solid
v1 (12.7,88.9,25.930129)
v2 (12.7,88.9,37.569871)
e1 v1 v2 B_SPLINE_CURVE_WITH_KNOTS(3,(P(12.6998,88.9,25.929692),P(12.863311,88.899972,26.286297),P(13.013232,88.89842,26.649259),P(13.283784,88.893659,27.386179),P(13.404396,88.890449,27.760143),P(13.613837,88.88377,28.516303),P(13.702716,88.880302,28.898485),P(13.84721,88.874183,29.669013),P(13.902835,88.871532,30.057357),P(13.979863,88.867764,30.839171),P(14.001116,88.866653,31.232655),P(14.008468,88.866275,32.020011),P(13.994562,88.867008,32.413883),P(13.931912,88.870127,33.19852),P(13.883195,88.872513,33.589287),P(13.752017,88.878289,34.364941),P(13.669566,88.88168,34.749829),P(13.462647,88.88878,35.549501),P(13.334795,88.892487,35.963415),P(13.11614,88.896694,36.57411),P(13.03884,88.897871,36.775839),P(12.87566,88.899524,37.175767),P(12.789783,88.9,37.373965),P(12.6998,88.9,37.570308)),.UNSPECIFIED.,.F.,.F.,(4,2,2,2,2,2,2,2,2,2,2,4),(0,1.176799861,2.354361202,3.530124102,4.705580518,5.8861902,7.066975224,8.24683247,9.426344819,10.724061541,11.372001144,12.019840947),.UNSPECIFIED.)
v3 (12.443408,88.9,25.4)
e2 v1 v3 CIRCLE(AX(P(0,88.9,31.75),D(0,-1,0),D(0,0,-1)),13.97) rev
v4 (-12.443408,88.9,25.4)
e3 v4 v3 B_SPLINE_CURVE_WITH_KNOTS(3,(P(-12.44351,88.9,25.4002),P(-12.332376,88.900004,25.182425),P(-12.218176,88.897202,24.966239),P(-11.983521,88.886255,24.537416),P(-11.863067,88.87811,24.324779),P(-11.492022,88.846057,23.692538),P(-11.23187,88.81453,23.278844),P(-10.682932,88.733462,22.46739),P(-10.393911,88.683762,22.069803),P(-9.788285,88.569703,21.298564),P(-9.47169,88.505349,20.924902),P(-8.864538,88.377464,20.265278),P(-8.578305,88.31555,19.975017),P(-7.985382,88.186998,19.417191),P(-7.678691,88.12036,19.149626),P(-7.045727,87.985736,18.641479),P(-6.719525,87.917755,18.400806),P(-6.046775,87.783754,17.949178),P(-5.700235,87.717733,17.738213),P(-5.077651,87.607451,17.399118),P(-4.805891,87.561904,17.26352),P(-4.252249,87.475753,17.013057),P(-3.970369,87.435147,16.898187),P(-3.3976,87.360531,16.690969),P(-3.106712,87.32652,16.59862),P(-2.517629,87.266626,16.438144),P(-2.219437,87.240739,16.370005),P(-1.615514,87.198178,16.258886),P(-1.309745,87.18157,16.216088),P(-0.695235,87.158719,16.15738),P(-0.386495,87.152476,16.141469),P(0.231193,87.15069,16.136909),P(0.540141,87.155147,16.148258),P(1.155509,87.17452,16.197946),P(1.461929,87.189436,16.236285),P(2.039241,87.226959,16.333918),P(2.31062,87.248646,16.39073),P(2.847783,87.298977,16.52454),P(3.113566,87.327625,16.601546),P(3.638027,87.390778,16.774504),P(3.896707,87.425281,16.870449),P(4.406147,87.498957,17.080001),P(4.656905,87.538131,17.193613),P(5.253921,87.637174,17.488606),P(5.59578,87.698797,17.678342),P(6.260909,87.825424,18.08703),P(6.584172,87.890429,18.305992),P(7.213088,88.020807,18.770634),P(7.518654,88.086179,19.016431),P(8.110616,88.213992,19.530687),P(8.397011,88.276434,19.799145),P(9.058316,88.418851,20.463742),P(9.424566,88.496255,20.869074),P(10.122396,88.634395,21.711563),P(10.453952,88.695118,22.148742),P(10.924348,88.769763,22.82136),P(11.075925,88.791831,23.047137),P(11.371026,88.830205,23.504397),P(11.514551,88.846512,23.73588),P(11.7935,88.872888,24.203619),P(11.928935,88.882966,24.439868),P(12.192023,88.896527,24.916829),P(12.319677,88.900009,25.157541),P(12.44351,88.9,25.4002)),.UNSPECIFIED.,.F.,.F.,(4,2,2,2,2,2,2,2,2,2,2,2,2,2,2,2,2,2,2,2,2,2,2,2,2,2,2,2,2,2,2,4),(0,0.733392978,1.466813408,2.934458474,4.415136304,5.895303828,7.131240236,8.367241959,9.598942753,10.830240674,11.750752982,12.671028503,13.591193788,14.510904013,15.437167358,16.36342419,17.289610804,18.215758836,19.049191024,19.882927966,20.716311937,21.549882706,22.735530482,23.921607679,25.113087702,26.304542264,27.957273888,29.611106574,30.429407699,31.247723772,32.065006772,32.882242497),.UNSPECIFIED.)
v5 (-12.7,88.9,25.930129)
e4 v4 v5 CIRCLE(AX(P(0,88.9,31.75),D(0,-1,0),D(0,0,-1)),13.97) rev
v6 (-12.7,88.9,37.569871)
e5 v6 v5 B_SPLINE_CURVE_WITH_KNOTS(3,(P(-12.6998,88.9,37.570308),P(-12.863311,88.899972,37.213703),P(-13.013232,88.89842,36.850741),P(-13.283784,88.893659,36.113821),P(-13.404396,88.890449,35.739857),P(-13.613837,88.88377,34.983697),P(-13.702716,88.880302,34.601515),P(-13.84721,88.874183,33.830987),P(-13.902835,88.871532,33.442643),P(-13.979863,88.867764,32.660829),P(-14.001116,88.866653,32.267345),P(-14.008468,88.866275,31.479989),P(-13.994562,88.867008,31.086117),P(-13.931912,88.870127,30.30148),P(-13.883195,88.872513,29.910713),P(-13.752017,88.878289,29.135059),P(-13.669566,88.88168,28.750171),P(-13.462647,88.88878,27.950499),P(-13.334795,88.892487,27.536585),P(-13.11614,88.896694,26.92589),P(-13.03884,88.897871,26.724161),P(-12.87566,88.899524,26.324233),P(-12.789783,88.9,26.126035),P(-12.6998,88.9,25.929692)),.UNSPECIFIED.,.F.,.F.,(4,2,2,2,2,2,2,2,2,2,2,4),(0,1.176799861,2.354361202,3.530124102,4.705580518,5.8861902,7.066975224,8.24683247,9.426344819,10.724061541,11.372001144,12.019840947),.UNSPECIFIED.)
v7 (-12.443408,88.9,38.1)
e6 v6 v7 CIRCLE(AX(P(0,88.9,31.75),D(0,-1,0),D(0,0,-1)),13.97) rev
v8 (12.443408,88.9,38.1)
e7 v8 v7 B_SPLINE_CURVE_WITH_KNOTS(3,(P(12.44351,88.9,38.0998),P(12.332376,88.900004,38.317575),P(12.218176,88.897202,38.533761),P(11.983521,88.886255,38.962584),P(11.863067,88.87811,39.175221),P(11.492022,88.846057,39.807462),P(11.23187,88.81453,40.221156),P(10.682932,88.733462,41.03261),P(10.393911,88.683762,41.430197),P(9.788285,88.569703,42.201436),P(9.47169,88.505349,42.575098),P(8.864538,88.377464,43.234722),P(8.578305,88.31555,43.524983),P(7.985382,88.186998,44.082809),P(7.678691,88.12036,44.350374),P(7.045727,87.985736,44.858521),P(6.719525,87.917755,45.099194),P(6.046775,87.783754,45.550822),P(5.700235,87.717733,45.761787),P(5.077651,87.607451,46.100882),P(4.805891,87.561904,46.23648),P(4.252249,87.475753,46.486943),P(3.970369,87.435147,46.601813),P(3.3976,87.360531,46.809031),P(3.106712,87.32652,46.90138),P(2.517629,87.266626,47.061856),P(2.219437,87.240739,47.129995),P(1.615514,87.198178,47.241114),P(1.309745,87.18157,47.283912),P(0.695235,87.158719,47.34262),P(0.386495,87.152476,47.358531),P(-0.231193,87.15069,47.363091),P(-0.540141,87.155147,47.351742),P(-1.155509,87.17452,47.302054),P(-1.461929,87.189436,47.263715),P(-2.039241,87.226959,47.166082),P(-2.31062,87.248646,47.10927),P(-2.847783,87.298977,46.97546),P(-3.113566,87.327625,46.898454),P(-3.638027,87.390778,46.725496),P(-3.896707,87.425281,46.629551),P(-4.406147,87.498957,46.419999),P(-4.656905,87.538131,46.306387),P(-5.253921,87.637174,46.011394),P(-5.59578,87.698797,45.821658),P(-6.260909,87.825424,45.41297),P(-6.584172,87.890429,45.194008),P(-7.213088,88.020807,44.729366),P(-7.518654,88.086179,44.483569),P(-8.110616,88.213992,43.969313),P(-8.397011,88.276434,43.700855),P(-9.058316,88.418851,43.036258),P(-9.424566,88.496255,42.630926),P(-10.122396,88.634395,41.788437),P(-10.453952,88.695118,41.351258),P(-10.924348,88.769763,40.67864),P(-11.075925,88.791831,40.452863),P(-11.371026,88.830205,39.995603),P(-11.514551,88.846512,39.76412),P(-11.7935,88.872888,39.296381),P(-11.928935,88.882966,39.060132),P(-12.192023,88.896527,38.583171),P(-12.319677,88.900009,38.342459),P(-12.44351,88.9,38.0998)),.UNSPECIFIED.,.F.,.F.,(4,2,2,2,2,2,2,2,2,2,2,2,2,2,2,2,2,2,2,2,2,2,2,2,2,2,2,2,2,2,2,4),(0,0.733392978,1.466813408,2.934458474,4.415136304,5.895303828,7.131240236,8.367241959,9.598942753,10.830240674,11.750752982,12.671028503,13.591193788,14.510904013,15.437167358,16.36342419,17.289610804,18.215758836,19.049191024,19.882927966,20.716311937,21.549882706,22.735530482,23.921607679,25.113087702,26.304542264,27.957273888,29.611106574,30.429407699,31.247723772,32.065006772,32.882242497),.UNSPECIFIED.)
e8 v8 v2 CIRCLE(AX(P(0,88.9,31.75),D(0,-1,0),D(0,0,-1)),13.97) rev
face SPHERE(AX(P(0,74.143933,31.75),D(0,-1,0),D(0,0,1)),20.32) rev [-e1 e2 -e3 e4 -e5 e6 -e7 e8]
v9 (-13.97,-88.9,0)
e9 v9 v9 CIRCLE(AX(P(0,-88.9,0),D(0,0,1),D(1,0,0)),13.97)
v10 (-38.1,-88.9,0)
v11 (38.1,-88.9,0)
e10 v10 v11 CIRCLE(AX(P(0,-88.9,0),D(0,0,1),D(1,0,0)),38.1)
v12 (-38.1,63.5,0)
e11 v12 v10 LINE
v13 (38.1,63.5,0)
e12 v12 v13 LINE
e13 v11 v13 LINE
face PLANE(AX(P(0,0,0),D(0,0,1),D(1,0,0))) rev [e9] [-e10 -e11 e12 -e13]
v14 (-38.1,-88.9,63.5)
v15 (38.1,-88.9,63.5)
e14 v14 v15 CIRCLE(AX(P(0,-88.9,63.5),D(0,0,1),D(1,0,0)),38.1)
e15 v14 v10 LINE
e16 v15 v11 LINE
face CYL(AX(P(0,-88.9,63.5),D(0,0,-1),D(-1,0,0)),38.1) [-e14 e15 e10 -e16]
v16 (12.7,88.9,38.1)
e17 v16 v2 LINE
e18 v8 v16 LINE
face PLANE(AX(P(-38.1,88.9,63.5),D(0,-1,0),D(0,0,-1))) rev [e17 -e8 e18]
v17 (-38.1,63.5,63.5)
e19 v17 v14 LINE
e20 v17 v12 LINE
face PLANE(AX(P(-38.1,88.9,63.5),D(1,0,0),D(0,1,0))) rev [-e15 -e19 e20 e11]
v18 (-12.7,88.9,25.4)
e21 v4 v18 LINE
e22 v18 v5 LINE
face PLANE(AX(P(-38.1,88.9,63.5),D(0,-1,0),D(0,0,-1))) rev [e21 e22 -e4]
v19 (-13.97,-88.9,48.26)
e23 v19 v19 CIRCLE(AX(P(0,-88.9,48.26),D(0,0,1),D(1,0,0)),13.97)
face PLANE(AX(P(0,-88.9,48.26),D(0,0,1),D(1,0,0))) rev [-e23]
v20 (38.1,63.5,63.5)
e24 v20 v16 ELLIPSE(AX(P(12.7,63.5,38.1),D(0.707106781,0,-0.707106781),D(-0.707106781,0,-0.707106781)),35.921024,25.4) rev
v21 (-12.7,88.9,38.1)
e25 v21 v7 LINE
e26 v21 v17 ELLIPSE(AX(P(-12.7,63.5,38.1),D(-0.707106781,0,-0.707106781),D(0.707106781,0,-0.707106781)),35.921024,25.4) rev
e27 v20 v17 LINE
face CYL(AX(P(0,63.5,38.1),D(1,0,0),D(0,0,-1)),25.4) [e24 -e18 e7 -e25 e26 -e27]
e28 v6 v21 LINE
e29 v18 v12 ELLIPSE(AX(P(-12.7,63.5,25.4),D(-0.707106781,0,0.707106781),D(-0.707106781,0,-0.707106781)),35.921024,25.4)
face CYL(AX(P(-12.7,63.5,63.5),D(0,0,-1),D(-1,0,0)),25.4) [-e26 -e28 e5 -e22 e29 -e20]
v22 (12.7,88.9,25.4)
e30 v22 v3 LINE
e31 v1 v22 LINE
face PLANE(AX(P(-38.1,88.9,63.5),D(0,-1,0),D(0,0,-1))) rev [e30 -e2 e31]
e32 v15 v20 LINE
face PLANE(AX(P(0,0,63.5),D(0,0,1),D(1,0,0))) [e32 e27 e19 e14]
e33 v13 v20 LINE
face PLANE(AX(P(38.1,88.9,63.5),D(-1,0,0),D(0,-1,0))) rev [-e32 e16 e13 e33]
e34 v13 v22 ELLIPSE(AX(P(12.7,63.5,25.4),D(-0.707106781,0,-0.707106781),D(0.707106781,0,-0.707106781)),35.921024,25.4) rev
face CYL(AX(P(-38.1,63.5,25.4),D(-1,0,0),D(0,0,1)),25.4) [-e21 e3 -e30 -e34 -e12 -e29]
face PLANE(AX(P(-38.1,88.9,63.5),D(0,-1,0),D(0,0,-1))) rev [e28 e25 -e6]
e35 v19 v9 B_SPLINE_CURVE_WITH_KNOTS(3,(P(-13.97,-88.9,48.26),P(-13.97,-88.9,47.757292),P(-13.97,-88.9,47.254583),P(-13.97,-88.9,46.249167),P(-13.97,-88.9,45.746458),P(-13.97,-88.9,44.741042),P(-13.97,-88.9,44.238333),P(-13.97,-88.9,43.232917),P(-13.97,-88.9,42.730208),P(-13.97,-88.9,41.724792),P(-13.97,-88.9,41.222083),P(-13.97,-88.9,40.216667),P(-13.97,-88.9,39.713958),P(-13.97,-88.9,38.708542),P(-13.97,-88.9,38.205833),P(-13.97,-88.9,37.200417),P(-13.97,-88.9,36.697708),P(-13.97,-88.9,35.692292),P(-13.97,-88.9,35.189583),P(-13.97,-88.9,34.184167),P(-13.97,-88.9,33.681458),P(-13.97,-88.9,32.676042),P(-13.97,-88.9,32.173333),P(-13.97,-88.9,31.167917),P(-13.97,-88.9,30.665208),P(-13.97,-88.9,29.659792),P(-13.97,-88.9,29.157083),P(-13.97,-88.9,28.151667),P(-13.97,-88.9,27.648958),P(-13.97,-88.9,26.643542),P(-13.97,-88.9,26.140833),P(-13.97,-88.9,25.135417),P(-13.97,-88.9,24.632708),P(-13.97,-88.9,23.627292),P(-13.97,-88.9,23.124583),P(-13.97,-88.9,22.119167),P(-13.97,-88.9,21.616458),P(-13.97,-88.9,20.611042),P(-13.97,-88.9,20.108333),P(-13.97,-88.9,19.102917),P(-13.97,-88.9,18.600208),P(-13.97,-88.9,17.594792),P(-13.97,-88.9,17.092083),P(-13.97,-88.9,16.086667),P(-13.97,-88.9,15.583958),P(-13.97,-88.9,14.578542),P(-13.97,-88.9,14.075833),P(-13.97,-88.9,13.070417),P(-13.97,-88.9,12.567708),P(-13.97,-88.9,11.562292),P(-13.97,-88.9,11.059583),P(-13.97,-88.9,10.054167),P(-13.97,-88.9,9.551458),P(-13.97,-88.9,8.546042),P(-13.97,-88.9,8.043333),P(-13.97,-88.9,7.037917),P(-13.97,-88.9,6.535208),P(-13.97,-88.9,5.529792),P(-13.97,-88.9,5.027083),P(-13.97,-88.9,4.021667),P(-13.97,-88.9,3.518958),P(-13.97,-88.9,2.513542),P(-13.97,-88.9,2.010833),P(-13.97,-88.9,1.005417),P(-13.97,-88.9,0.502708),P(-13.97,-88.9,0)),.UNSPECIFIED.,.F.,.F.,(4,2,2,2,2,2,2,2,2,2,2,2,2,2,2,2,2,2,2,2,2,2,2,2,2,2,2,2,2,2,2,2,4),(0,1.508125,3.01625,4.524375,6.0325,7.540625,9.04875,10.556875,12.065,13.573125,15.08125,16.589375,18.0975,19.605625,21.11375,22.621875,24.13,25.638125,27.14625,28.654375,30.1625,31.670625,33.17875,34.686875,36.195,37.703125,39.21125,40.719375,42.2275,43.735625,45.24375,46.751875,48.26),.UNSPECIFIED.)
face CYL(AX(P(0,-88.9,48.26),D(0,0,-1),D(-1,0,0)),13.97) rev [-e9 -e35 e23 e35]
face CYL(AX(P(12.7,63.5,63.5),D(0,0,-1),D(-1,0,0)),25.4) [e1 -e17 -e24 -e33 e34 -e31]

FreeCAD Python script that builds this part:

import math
import FreeCAD as App
import Part
import Sketcher
from FreeCAD import Vector
Q = App.Units.Quantity


def edges_at(feature, points):
    """Names of the edges that pass closest to the given points."""
    edges = feature.Shape.Edges
    near = lambda p: min(range(len(edges)), key=lambda i: edges[i].distToShape(Part.Vertex(*p))[0])
    return sorted({f"Edge{near(p) + 1}" for p in points})


def add_polygon(sketch, points):
    """Adds a closed chain of lines whose ends are joined by coincident constraints."""
    first, n = sketch.GeometryCount, len(points)
    for a, b in zip(points, points[1:] + points[:1]):
        sketch.addGeometry(Part.LineSegment(App.Vector(*a, 0), App.Vector(*b, 0)), False)
    for i in range(n):
        sketch.addConstraint(Sketcher.Constraint("Coincident", first + i, 2, first + (i + 1) % n, 1))

doc = App.newDocument("Part")
params = doc.addObject("Spreadsheet::Sheet", "Params")
for row, (alias, value) in enumerate([
    ("sketch1_width", "3 in"),
    ("sketch1_height", "7 in"),
    ("pad1_length", "2.5 in"),
    ("sketch2_diameter", "3 in"),
    ("sketch3_diameter", "1.1 in"),
    ("pocket1_length", "1.9 in"),
    ("fillet_radius", "1 in"),
    ("sketch4_radius", "0.8 in"),
    ("groove_angle", "360 deg"),
], start=1):
    params.set(f"A{row}", alias)
    params.set(f"B{row}", "=" + value)
    params.setAlias(f"B{row}", alias)

body = doc.addObject("PartDesign::Body", "Body")

sketch1 = body.newObject("Sketcher::SketchObject", "Sketch")
sketch1.AttachmentSupport = (doc.getObject("XY_Plane"), [""])
sketch1.MapMode = "FlatFace"
add_polygon(sketch1, [(-38, 89), (-38, -89), (38, -89), (38, 89)])
sketch1.addConstraint([
    Sketcher.Constraint("Vertical", 0),
    Sketcher.Constraint("Horizontal", 1),
    Sketcher.Constraint("Vertical", 2),
    Sketcher.Constraint("Horizontal", 3),
    Sketcher.Constraint("Symmetric", 0, 2, 2, 2, -1, 1),
    Sketcher.Constraint("DistanceX", 1, 1, 1, 2, Q("3 in")),
    Sketcher.Constraint("DistanceY", 0, 2, 0, 1, Q("7 in")),
])
sketch1.setExpression("Constraints[9]", "Params.sketch1_width")
sketch1.setExpression("Constraints[10]", "Params.sketch1_height")
pad1 = body.newObject("PartDesign::Pad", "Pad")
pad1.Profile = sketch1
pad1.setExpression("Length", "Params.pad1_length")

sketch2 = body.newObject("Sketcher::SketchObject", "Sketch001")
sketch2.AttachmentSupport = (doc.getObject("XY_Plane"), [""])
sketch2.MapMode = "FlatFace"
sketch2.addGeometry(Part.Circle(Vector(0, -89, 0), Vector(0, 0, 1), 38), False)
sketch2.addConstraint([
    Sketcher.Constraint("PointOnObject", 0, 3, -2),
    Sketcher.Constraint("Diameter", 0, Q("3 in")),
    Sketcher.Constraint("DistanceY", 0, 3, -1, 1, Q("3.5 in")),
])
sketch2.setExpression("Constraints[1]", "Params.sketch2_diameter")
pad2 = body.newObject("PartDesign::Pad", "Pad001")
pad2.Profile = sketch2
pad2.Type = "UpToLast"

sketch3 = body.newObject("Sketcher::SketchObject", "Sketch002")
sketch3.AttachmentSupport = (doc.getObject("XY_Plane"), [""])
sketch3.MapMode = "FlatFace"
sketch3.addGeometry(Part.Circle(Vector(0, -89, 0), Vector(0, 0, 1), 14), False)
sketch3.addConstraint([
    Sketcher.Constraint("PointOnObject", 0, 3, -2),
    Sketcher.Constraint("Diameter", 0, Q("1.1 in")),
    Sketcher.Constraint("DistanceY", 0, 3, -1, 1, Q("3.5 in")),
])
sketch3.setExpression("Constraints[1]", "Params.sketch3_diameter")
pocket1 = body.newObject("PartDesign::Pocket", "Pocket")
pocket1.Profile = sketch3
pocket1.setExpression("Length", "Params.pocket1_length")
pocket1.Reversed = True
doc.recompute()

fillet = body.newObject("PartDesign::Fillet", "Fillet")
fillet.Base = (pocket1, edges_at(pocket1, [
    (0, 88.9, 0),
    (-38.1, 88.9, 31.75),
    (38.1, 88.9, 31.75),
    (0, 88.9, 63.5),
]))
fillet.setExpression("Radius", "Params.fillet_radius")

sketch4 = body.newObject("Sketcher::SketchObject", "Sketch003")
sketch4.AttachmentSupport = (doc.getObject("YZ_Plane"), [""])
sketch4.MapMode = "FlatFace"
sketch4.addGeometry([
    Part.LineSegment(Vector(54, 32, 0), Vector(94, 32, 0)),
    Part.ArcOfCircle(Part.Circle(Vector(74, 32, 0), Vector(0, 0, 1), 20), math.radians(0), math.radians(180)),
], False)
sketch4.addGeometry(Part.LineSegment(Vector(54, 32, 0), Vector(94, 32, 0)), True)
sketch4.addConstraint([
    Sketcher.Constraint("Coincident", 0, 1, 1, 2),
    Sketcher.Constraint("Coincident", 1, 1, 0, 2),
    Sketcher.Constraint("Horizontal", 0),
    Sketcher.Constraint("Horizontal", 2),
    Sketcher.Constraint("Coincident", 2, 1, 0, 1),
    Sketcher.Constraint("Horizontal", 1, 3, 0, 1),
    Sketcher.Constraint("Equal", 0, 2),
    Sketcher.Constraint("Radius", 1, Q("0.8 in")),
    Sketcher.Constraint("DistanceY", -1, 1, 1, 3, Q("1.25 in")),
    Sketcher.Constraint("DistanceX", -1, 1, 1, 3, 74.143933),
])
sketch4.setExpression("Constraints[7]", "Params.sketch4_radius")
groove = body.newObject("PartDesign::Groove", "Groove")
groove.Profile = sketch4
groove.ReferenceAxis = (sketch4, ["Axis0"])
groove.setExpression("Angle", "Params.groove_angle")

doc.recompute()
